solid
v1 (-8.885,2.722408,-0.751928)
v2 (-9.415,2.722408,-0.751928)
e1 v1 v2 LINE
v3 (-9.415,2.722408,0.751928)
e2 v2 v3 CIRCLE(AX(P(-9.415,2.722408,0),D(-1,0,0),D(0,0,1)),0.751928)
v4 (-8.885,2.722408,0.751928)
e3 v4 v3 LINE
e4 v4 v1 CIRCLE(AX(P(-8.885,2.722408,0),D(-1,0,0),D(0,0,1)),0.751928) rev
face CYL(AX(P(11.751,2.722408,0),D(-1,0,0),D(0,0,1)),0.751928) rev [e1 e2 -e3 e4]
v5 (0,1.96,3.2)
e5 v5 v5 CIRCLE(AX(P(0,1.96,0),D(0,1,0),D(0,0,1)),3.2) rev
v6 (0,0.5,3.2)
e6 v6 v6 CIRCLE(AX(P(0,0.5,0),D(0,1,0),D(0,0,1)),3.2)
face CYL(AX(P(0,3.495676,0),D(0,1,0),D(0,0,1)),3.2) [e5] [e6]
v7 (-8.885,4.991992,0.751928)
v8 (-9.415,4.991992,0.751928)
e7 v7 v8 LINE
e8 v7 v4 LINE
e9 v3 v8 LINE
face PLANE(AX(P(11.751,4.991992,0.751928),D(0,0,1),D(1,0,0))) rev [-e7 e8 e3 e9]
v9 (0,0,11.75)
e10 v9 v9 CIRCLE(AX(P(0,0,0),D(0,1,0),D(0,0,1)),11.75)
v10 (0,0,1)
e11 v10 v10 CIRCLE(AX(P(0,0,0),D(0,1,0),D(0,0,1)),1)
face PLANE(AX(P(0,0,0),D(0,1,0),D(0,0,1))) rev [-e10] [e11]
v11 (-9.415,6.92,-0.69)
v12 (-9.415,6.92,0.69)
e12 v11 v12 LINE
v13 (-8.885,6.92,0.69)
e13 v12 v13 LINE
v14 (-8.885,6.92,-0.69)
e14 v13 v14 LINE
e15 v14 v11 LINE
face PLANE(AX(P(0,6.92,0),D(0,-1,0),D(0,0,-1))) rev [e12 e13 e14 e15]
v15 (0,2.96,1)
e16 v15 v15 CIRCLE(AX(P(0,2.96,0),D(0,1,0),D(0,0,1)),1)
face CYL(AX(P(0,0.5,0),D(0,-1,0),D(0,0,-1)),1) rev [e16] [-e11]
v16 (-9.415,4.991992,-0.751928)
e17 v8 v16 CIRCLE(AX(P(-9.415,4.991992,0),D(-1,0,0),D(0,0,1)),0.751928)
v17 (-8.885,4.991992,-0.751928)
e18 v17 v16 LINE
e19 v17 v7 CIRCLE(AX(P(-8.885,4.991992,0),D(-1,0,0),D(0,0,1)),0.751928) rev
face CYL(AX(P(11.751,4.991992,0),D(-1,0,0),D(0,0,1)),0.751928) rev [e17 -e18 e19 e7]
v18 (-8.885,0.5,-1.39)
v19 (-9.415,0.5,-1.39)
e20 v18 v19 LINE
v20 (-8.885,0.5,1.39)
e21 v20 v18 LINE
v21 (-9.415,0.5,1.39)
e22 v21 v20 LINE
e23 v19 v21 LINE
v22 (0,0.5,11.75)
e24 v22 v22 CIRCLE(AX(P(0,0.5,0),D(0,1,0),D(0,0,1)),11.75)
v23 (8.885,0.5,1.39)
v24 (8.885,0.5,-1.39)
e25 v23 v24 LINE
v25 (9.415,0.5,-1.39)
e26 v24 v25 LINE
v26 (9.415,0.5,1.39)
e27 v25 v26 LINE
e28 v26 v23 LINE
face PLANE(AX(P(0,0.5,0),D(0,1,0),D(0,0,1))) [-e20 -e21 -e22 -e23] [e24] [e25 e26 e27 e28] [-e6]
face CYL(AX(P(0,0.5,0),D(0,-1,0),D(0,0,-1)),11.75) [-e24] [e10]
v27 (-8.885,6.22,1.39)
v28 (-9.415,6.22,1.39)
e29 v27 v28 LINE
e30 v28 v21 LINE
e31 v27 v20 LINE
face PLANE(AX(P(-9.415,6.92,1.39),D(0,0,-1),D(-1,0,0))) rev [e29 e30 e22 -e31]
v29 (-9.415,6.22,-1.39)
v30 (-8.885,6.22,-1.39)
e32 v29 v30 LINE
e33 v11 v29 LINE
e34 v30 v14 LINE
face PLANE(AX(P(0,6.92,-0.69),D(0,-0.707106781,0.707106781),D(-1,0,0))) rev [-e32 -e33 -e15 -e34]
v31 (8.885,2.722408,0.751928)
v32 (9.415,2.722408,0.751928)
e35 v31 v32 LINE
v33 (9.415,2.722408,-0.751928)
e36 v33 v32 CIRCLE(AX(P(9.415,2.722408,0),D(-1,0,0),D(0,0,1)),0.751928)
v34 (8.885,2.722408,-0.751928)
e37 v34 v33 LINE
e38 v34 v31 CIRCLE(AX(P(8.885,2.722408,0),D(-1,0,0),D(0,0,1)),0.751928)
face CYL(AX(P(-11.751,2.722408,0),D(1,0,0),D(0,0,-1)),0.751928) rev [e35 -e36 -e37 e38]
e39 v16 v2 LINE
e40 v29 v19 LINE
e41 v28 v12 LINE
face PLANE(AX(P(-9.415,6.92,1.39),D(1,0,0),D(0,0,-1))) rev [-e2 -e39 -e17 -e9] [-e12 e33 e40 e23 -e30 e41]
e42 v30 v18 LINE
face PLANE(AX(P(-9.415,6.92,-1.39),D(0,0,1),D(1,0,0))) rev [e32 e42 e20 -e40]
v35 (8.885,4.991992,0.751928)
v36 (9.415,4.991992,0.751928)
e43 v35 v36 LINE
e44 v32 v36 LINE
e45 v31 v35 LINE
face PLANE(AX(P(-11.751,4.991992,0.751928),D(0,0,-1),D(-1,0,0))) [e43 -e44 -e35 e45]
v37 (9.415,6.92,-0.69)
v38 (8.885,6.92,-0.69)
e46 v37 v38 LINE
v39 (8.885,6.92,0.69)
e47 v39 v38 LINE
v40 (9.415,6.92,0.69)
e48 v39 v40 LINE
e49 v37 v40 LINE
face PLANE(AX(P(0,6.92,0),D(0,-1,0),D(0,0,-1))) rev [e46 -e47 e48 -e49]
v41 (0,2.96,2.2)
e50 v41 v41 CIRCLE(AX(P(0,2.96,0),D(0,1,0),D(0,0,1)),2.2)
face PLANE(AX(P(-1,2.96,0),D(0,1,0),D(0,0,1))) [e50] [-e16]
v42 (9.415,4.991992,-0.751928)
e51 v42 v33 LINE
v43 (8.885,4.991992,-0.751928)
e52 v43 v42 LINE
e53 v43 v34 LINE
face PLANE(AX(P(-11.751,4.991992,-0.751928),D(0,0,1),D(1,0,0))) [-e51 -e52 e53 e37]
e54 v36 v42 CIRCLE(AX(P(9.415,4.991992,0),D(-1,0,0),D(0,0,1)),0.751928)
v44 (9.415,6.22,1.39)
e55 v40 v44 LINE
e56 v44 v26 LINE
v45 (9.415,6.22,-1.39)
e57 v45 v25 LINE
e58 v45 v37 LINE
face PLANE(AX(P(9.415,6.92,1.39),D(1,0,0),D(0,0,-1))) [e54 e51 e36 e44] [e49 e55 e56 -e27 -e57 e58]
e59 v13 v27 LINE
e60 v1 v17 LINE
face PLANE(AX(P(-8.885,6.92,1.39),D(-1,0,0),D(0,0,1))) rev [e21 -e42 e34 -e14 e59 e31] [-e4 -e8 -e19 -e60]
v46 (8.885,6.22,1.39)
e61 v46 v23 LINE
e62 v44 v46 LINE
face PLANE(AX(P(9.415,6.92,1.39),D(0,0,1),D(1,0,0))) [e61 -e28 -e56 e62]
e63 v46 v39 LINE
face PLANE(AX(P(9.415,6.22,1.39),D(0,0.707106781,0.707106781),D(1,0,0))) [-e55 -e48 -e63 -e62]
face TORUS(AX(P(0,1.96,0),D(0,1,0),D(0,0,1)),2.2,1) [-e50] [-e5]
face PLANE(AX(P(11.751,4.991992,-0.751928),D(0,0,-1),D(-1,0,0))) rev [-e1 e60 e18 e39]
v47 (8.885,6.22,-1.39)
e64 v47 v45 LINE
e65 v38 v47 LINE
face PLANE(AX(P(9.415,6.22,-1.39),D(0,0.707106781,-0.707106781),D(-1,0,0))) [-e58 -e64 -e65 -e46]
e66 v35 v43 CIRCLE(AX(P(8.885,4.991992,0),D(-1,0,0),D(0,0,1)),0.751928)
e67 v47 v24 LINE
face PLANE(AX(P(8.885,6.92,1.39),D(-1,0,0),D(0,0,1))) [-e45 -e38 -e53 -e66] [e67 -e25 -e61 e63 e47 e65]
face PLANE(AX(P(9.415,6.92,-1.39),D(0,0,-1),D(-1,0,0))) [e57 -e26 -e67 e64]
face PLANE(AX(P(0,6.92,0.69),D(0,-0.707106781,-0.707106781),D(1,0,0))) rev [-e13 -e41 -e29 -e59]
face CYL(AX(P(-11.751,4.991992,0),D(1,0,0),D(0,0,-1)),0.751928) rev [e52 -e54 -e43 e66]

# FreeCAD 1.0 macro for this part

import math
import FreeCAD as App
import Part
import Sketcher


def edges_at(feature, points):
    """Names of the edges that pass closest to the given points."""
    edges = feature.Shape.Edges
    near = lambda p: min(range(len(edges)), key=lambda i: edges[i].distToShape(Part.Vertex(*p))[0])
    return sorted({f"Edge{near(p) + 1}" for p in points})

doc = App.newDocument("Part")
params = doc.addObject("Spreadsheet::Sheet", "Params")
for row, (alias, value) in enumerate([
    ("sketch1_diameter", "2 mm"),
    ("sketch1_diameter2", "23.5 mm"),
    ("pad1_length", "0.5 mm"),
    ("sketch2_width", "0.53 mm"),
    ("sketch2_height", "2.78 mm"),
    ("pad2_length", "6.42 mm"),
    ("chamfer_size", "0.7 mm"),
    ("pocket1_length", "0.53 mm"),
    ("sketch4_width", "2.2 mm"),
    ("sketch4_height", "2.46 mm"),
    ("revolution_angle", "360 deg"),
    ("fillet_radius", "1 mm"),
    ("chamfer2_size", "0.7 mm"),
], start=1):
    params.set(f"A{row}", alias)
    params.set(f"B{row}", "=" + value)
    params.setAlias(f"B{row}", alias)

body = doc.addObject("PartDesign::Body", "Body")

sketch1 = body.newObject("Sketcher::SketchObject", "Sketch")
sketch1.AttachmentSupport = (doc.getObject("XZ_Plane"), [""])
sketch1.MapMode = "FlatFace"
sketch1.addGeometry([
    Part.Circle(App.Vector(0, 0, 0), App.Vector(0, 0, 1), 11.8),
    Part.Circle(App.Vector(0, 0, 0), App.Vector(0, 0, 1), 1),
], False)
sketch1.addConstraint([
    Sketcher.Constraint("Coincident", 0, 3, -1, 1),
    Sketcher.Constraint("Coincident", 1, 3, -1, 1),
    Sketcher.Constraint("Diameter", 1, 2.0),
    Sketcher.Constraint("Diameter", 0, 23.5),
])
sketch1.setExpression("Constraints[2]", "Params.sketch1_diameter")
sketch1.setExpression("Constraints[3]", "Params.sketch1_diameter2")
pad1 = body.newObject("PartDesign::Pad", "Pad")
pad1.Profile = sketch1
pad1.setExpression("Length", "Params.pad1_length")
pad1.Reversed = True

sketch2 = body.newObject("Sketcher::SketchObject", "Sketch001")
sketch2.AttachmentSupport = (doc.getObject("XZ_Plane"), [""])
sketch2.MapMode = "FlatFace"
sketch2.AttachmentOffset = App.Placement(App.Vector(0, 0, -0.5), App.Rotation())
sketch2.addGeometry([
    Part.LineSegment(App.Vector(-9.4, -1.4, 0), App.Vector(-9.4, 1.4, 0)),
    Part.LineSegment(App.Vector(-9.4, 1.4, 0), App.Vector(-8.9, 1.4, 0)),
    Part.LineSegment(App.Vector(-8.9, 1.4, 0), App.Vector(-8.9, -1.4, 0)),
    Part.LineSegment(App.Vector(-8.9, -1.4, 0), App.Vector(-9.4, -1.4, 0)),
], False)
sketch2.addConstraint([
    Sketcher.Constraint("Coincident", 0, 2, 1, 1),
    Sketcher.Constraint("Coincident", 1, 2, 2, 1),
    Sketcher.Constraint("Coincident", 2, 2, 3, 1),
    Sketcher.Constraint("Coincident", 3, 2, 0, 1),
    Sketcher.Constraint("Vertical", 0),
    Sketcher.Constraint("Horizontal", 1),
    Sketcher.Constraint("Vertical", 2),
    Sketcher.Constraint("Horizontal", 3),
    Sketcher.Constraint("DistanceX", 1, 1, 1, 2, 0.53),
    Sketcher.Constraint("DistanceY", 0, 1, 0, 2, 2.78),
    Sketcher.Constraint("DistanceY", -1, 1, 0, 2, 1.39),
    Sketcher.Constraint("DistanceX", 0, 2, -1, 1, 9.415),
])
sketch2.setExpression("Constraints[8]", "Params.sketch2_width")
sketch2.setExpression("Constraints[9]", "Params.sketch2_height")
pad2 = body.newObject("PartDesign::Pad", "Pad001")
pad2.Profile = sketch2
pad2.setExpression("Length", "Params.pad2_length")
pad2.Reversed = True
doc.recompute()

chamfer = body.newObject("PartDesign::Chamfer", "Chamfer")
chamfer.Base = (pad2, edges_at(pad2, [(-9.15, 6.92, -1.39), (-9.15, 6.92, 1.39)]))
chamfer.setExpression("Size", "Params.chamfer_size")

sketch3 = body.newObject("Sketcher::SketchObject", "Sketch002")
sketch3.AttachmentSupport = (doc.getObject("YZ_Plane"), [""])
sketch3.MapMode = "FlatFace"
sketch3.AttachmentOffset = App.Placement(App.Vector(0, 0, -9.415), App.Rotation())
sketch3.addGeometry([
    Part.LineSegment(App.Vector(2.7, 0.8, 0), App.Vector(5, 0.8, 0)),
    Part.ArcOfCircle(Part.Circle(App.Vector(5, 0, 0), App.Vector(0, 0, 1), 0.8), math.radians(-90), math.radians(90)),
    Part.LineSegment(App.Vector(5, -0.8, 0), App.Vector(2.7, -0.8, 0)),
    Part.ArcOfCircle(Part.Circle(App.Vector(2.7, 0, 0), App.Vector(0, 0, 1), 0.8), math.radians(90), math.radians(270)),
], False)
sketch3.addConstraint([
    Sketcher.Constraint("Tangent", 0, 2, 1, 2),
    Sketcher.Constraint("Tangent", 1, 1, 2, 1),
    Sketcher.Constraint("Tangent", 2, 2, 3, 2),
    Sketcher.Constraint("Tangent", 3, 1, 0, 1),
    Sketcher.Constraint("Horizontal", 0),
    Sketcher.Constraint("Horizontal", 2),
    Sketcher.Constraint("PointOnObject", 1, 3, -1),
    Sketcher.Constraint("Radius", 1, 0.751928),
    Sketcher.Constraint("DistanceX", 0, 1, 0, 2, 2.269585),
    Sketcher.Constraint("DistanceX", -1, 1, 1, 3, 4.991992),
])
pocket1 = body.newObject("PartDesign::Pocket", "Pocket")
pocket1.Profile = sketch3
pocket1.setExpression("Length", "Params.pocket1_length")
pocket1.Reversed = True

sketch4 = body.newObject("Sketcher::SketchObject", "Sketch003")
sketch4.AttachmentSupport = (doc.getObject("XY_Plane"), [""])
sketch4.MapMode = "FlatFace"
sketch4.addGeometry([
    Part.LineSegment(App.Vector(-3.2, 3, 0), App.Vector(-3.2, 0.5, 0)),
    Part.LineSegment(App.Vector(-3.2, 0.5, 0), App.Vector(-1, 0.5, 0)),
    Part.LineSegment(App.Vector(-1, 0.5, 0), App.Vector(-1, 3, 0)),
    Part.LineSegment(App.Vector(-1, 3, 0), App.Vector(-3.2, 3, 0)),
], False)
sketch4.addConstraint([
    Sketcher.Constraint("Coincident", 0, 2, 1, 1),
    Sketcher.Constraint("Coincident", 1, 2, 2, 1),
    Sketcher.Constraint("Coincident", 2, 2, 3, 1),
    Sketcher.Constraint("Coincident", 3, 2, 0, 1),
    Sketcher.Constraint("Vertical", 0),
    Sketcher.Constraint("Horizontal", 1),
    Sketcher.Constraint("Vertical", 2),
    Sketcher.Constraint("Horizontal", 3),
    Sketcher.Constraint("DistanceX", 1, 1, 1, 2, 2.2),
    Sketcher.Constraint("DistanceX", 1, 2, -1, 1, 1.0),
    Sketcher.Constraint("DistanceY", 0, 2, 0, 1, 2.46),
    Sketcher.Constraint("DistanceY", -1, 1, 0, 2, 0.5),
])
sketch4.setExpression("Constraints[8]", "Params.sketch4_width")
sketch4.setExpression("Constraints[10]", "Params.sketch4_height")
revolution = body.newObject("PartDesign::Revolution", "Revolution")
revolution.Profile = sketch4
revolution.ReferenceAxis = (sketch4, ["V_Axis"])
revolution.setExpression("Angle", "Params.revolution_angle")
doc.recompute()

fillet = body.newObject("PartDesign::Fillet", "Fillet")
fillet.Base = (revolution, edges_at(revolution, [(3.2, 2.96, 0)]))
fillet.setExpression("Radius", "Params.fillet_radius")
doc.recompute()

mirrored = body.newObject("PartDesign::Mirrored", "Mirrored")
mirrored.Originals = [pad2, pocket1]
mirrored.MirrorPlane = (doc.getObject("YZ_Plane"), [""])
body.Tip = mirrored
doc.recompute()

chamfer2 = body.newObject("PartDesign::Chamfer", "Chamfer001")
chamfer2.Base = (mirrored, edges_at(mirrored, [(9.15, 6.92, -1.39), (9.15, 6.92, 1.39)]))
chamfer2.setExpression("Size", "Params.chamfer2_size")

doc.recompute()
